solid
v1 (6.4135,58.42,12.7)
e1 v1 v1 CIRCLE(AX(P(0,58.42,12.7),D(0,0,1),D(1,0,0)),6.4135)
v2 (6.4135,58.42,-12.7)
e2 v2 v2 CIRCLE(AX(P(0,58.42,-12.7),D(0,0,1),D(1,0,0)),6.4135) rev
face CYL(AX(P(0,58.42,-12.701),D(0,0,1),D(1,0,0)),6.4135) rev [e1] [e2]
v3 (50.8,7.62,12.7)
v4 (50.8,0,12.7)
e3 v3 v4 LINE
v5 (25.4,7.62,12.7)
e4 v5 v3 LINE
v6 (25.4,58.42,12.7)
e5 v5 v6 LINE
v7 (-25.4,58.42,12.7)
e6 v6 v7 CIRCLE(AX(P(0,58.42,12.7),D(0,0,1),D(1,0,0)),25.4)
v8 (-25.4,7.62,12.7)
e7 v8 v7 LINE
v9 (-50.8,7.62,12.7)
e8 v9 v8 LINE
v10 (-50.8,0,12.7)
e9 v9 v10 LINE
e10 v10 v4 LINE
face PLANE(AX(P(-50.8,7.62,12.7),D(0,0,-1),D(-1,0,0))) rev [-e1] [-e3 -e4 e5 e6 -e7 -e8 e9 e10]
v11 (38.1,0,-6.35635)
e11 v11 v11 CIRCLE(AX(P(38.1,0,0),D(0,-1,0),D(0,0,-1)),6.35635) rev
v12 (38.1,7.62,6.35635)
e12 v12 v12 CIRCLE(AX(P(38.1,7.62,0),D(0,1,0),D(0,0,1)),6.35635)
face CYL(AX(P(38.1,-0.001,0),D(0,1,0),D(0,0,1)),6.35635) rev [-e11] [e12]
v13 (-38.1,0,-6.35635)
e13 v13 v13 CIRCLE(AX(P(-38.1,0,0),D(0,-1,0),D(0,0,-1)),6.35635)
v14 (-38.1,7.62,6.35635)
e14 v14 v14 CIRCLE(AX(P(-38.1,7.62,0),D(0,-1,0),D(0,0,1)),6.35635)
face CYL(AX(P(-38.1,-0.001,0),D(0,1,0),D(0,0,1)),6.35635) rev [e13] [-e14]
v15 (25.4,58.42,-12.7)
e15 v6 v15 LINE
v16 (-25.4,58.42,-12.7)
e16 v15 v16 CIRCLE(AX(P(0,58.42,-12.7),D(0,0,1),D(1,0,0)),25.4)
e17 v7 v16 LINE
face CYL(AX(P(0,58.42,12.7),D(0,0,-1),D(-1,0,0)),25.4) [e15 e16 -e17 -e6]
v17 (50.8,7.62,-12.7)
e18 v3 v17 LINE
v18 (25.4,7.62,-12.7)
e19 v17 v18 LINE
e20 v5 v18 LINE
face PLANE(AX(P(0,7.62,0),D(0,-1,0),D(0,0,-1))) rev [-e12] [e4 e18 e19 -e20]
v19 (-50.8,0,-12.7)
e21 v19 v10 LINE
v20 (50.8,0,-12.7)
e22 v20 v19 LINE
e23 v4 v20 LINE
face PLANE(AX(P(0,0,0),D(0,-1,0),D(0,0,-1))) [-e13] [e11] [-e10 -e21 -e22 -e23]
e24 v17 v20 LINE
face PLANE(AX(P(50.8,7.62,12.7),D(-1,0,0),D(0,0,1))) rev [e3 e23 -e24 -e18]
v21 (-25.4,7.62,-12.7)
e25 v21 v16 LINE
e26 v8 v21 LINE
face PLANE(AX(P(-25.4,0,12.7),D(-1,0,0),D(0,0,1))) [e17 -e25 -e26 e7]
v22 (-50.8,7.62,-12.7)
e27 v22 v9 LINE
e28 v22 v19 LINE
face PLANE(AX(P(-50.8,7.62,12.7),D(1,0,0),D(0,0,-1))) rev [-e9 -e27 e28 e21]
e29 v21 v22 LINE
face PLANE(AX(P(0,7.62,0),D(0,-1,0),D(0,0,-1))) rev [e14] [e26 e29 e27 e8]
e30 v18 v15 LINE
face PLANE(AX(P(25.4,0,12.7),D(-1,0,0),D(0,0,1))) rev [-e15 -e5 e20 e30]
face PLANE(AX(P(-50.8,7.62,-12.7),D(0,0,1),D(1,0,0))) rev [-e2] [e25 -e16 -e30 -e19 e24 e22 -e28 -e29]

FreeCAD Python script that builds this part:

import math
import FreeCAD as App
import Part
import Sketcher
Q = App.Units.Quantity

doc = App.newDocument("Part")
body = doc.addObject("PartDesign::Body", "Body")

# Sketch on XZ plane
sketch1 = body.newObject("Sketcher::SketchObject", "Sketch")
sketch1.AttachmentSupport = (doc.getObject("XZ_Plane"), [""])
sketch1.MapMode = "FlatFace"
sketch1.addGeometry([
    Part.LineSegment(App.Vector(-51, -13, 0), App.Vector(-51, 13, 0)),
    Part.LineSegment(App.Vector(-51, 13, 0), App.Vector(51, 13, 0)),
    Part.LineSegment(App.Vector(51, 13, 0), App.Vector(51, -13, 0)),
    Part.LineSegment(App.Vector(51, -13, 0), App.Vector(-51, -13, 0)),
], False)
sketch1.addConstraint([
    Sketcher.Constraint("Coincident", 0, 2, 1, 1),
    Sketcher.Constraint("Coincident", 1, 2, 2, 1),
    Sketcher.Constraint("Coincident", 2, 2, 3, 1),
    Sketcher.Constraint("Coincident", 3, 2, 0, 1),
    Sketcher.Constraint("Vertical", 0),
    Sketcher.Constraint("Horizontal", 1),
    Sketcher.Constraint("Vertical", 2),
    Sketcher.Constraint("Horizontal", 3),
    Sketcher.Constraint("Symmetric", 0, 2, 2, 2, -1, 1),
    Sketcher.Constraint("DistanceX", 1, 1, 1, 2, Q("4 in")),
    Sketcher.Constraint("DistanceY", 0, 1, 0, 2, Q("1 in")),
])
pad1 = body.newObject("PartDesign::Pad", "Pad")
pad1.Profile = sketch1
pad1.Length = Q("0.3 in")
pad1.Reversed = True

# Sketch on XY plane
sketch2 = body.newObject("Sketcher::SketchObject", "Sketch001")
sketch2.AttachmentSupport = (doc.getObject("XY_Plane"), [""])
sketch2.MapMode = "FlatFace"
sketch2.addGeometry([
    Part.ArcOfCircle(Part.Circle(App.Vector(0, 58, 0), App.Vector(0, 0, 1), 25), math.radians(0), math.radians(180)),
    Part.LineSegment(App.Vector(-25, 58, 0), App.Vector(-25, 8, 0)),
    Part.LineSegment(App.Vector(-25, 8, 0), App.Vector(25, 8, 0)),
    Part.LineSegment(App.Vector(25, 8, 0), App.Vector(25, 58, 0)),
], False)
sketch2.addConstraint([
    Sketcher.Constraint("Tangent", 0, 2, 1, 1),
    Sketcher.Constraint("Coincident", 1, 2, 2, 1),
    Sketcher.Constraint("Coincident", 2, 2, 3, 1),
    Sketcher.Constraint("Tangent", 3, 2, 0, 1),
    Sketcher.Constraint("Vertical", 1),
    Sketcher.Constraint("Horizontal", 2),
    Sketcher.Constraint("Vertical", 3),
    Sketcher.Constraint("PointOnObject", 0, 3, -2),
    Sketcher.Constraint("Equal", 2, 1),
    Sketcher.Constraint("Radius", 0, Q("1 in")),
    Sketcher.Constraint("DistanceY", -1, 1, 0, 3, Q("2.3 in")),
])
pad2 = body.newObject("PartDesign::Pad", "Pad001")
pad2.Profile = sketch2
pad2.Length = Q("1 in")
pad2.Midplane = True

# Sketch on XZ plane
sketch3 = body.newObject("Sketcher::SketchObject", "Sketch002")
sketch3.AttachmentSupport = (doc.getObject("XZ_Plane"), [""])
sketch3.MapMode = "FlatFace"
sketch3.AttachmentOffset = App.Placement(App.Vector(0, 0, -0.3 * 25.4), App.Rotation())
sketch3.addGeometry(Part.Circle(App.Vector(38, 0, 0), App.Vector(0, 0, 1), 6), False)
sketch3.addConstraint([
    Sketcher.Constraint("PointOnObject", 0, 3, -1),
    Sketcher.Constraint("Diameter", 0, Q("0.5005 in")),
    Sketcher.Constraint("DistanceX", -1, 1, 0, 3, Q("1.5 in")),
])
pocket1 = body.newObject("PartDesign::Pocket", "Pocket")
pocket1.Profile = sketch3
pocket1.Length = Q("0.3 in")
pocket1.Reversed = True
doc.recompute()

mirrored = body.newObject("PartDesign::Mirrored", "Mirrored")
mirrored.Originals = [pocket1]
mirrored.MirrorPlane = (doc.getObject("YZ_Plane"), [""])
body.Tip = mirrored

# Sketch on XY plane
sketch4 = body.newObject("Sketcher::SketchObject", "Sketch003")
sketch4.AttachmentSupport = (doc.getObject("XY_Plane"), [""])
sketch4.MapMode = "FlatFace"
sketch4.AttachmentOffset = App.Placement(App.Vector(0, 0, 0.5 * 25.4), App.Rotation())
sketch4.addGeometry(Part.Circle(App.Vector(0, 58, 0), App.Vector(0, 0, 1), 6), False)
sketch4.addConstraint([
    Sketcher.Constraint("PointOnObject", 0, 3, -2),
    Sketcher.Constraint("Diameter", 0, Q("0.505 in")),
    Sketcher.Constraint("DistanceY", -1, 1, 0, 3, Q("2.3 in")),
])
pocket2 = body.newObject("PartDesign::Pocket", "Pocket001")
pocket2.Profile = sketch4
pocket2.Type = "UpToFirst"

doc.recompute()
